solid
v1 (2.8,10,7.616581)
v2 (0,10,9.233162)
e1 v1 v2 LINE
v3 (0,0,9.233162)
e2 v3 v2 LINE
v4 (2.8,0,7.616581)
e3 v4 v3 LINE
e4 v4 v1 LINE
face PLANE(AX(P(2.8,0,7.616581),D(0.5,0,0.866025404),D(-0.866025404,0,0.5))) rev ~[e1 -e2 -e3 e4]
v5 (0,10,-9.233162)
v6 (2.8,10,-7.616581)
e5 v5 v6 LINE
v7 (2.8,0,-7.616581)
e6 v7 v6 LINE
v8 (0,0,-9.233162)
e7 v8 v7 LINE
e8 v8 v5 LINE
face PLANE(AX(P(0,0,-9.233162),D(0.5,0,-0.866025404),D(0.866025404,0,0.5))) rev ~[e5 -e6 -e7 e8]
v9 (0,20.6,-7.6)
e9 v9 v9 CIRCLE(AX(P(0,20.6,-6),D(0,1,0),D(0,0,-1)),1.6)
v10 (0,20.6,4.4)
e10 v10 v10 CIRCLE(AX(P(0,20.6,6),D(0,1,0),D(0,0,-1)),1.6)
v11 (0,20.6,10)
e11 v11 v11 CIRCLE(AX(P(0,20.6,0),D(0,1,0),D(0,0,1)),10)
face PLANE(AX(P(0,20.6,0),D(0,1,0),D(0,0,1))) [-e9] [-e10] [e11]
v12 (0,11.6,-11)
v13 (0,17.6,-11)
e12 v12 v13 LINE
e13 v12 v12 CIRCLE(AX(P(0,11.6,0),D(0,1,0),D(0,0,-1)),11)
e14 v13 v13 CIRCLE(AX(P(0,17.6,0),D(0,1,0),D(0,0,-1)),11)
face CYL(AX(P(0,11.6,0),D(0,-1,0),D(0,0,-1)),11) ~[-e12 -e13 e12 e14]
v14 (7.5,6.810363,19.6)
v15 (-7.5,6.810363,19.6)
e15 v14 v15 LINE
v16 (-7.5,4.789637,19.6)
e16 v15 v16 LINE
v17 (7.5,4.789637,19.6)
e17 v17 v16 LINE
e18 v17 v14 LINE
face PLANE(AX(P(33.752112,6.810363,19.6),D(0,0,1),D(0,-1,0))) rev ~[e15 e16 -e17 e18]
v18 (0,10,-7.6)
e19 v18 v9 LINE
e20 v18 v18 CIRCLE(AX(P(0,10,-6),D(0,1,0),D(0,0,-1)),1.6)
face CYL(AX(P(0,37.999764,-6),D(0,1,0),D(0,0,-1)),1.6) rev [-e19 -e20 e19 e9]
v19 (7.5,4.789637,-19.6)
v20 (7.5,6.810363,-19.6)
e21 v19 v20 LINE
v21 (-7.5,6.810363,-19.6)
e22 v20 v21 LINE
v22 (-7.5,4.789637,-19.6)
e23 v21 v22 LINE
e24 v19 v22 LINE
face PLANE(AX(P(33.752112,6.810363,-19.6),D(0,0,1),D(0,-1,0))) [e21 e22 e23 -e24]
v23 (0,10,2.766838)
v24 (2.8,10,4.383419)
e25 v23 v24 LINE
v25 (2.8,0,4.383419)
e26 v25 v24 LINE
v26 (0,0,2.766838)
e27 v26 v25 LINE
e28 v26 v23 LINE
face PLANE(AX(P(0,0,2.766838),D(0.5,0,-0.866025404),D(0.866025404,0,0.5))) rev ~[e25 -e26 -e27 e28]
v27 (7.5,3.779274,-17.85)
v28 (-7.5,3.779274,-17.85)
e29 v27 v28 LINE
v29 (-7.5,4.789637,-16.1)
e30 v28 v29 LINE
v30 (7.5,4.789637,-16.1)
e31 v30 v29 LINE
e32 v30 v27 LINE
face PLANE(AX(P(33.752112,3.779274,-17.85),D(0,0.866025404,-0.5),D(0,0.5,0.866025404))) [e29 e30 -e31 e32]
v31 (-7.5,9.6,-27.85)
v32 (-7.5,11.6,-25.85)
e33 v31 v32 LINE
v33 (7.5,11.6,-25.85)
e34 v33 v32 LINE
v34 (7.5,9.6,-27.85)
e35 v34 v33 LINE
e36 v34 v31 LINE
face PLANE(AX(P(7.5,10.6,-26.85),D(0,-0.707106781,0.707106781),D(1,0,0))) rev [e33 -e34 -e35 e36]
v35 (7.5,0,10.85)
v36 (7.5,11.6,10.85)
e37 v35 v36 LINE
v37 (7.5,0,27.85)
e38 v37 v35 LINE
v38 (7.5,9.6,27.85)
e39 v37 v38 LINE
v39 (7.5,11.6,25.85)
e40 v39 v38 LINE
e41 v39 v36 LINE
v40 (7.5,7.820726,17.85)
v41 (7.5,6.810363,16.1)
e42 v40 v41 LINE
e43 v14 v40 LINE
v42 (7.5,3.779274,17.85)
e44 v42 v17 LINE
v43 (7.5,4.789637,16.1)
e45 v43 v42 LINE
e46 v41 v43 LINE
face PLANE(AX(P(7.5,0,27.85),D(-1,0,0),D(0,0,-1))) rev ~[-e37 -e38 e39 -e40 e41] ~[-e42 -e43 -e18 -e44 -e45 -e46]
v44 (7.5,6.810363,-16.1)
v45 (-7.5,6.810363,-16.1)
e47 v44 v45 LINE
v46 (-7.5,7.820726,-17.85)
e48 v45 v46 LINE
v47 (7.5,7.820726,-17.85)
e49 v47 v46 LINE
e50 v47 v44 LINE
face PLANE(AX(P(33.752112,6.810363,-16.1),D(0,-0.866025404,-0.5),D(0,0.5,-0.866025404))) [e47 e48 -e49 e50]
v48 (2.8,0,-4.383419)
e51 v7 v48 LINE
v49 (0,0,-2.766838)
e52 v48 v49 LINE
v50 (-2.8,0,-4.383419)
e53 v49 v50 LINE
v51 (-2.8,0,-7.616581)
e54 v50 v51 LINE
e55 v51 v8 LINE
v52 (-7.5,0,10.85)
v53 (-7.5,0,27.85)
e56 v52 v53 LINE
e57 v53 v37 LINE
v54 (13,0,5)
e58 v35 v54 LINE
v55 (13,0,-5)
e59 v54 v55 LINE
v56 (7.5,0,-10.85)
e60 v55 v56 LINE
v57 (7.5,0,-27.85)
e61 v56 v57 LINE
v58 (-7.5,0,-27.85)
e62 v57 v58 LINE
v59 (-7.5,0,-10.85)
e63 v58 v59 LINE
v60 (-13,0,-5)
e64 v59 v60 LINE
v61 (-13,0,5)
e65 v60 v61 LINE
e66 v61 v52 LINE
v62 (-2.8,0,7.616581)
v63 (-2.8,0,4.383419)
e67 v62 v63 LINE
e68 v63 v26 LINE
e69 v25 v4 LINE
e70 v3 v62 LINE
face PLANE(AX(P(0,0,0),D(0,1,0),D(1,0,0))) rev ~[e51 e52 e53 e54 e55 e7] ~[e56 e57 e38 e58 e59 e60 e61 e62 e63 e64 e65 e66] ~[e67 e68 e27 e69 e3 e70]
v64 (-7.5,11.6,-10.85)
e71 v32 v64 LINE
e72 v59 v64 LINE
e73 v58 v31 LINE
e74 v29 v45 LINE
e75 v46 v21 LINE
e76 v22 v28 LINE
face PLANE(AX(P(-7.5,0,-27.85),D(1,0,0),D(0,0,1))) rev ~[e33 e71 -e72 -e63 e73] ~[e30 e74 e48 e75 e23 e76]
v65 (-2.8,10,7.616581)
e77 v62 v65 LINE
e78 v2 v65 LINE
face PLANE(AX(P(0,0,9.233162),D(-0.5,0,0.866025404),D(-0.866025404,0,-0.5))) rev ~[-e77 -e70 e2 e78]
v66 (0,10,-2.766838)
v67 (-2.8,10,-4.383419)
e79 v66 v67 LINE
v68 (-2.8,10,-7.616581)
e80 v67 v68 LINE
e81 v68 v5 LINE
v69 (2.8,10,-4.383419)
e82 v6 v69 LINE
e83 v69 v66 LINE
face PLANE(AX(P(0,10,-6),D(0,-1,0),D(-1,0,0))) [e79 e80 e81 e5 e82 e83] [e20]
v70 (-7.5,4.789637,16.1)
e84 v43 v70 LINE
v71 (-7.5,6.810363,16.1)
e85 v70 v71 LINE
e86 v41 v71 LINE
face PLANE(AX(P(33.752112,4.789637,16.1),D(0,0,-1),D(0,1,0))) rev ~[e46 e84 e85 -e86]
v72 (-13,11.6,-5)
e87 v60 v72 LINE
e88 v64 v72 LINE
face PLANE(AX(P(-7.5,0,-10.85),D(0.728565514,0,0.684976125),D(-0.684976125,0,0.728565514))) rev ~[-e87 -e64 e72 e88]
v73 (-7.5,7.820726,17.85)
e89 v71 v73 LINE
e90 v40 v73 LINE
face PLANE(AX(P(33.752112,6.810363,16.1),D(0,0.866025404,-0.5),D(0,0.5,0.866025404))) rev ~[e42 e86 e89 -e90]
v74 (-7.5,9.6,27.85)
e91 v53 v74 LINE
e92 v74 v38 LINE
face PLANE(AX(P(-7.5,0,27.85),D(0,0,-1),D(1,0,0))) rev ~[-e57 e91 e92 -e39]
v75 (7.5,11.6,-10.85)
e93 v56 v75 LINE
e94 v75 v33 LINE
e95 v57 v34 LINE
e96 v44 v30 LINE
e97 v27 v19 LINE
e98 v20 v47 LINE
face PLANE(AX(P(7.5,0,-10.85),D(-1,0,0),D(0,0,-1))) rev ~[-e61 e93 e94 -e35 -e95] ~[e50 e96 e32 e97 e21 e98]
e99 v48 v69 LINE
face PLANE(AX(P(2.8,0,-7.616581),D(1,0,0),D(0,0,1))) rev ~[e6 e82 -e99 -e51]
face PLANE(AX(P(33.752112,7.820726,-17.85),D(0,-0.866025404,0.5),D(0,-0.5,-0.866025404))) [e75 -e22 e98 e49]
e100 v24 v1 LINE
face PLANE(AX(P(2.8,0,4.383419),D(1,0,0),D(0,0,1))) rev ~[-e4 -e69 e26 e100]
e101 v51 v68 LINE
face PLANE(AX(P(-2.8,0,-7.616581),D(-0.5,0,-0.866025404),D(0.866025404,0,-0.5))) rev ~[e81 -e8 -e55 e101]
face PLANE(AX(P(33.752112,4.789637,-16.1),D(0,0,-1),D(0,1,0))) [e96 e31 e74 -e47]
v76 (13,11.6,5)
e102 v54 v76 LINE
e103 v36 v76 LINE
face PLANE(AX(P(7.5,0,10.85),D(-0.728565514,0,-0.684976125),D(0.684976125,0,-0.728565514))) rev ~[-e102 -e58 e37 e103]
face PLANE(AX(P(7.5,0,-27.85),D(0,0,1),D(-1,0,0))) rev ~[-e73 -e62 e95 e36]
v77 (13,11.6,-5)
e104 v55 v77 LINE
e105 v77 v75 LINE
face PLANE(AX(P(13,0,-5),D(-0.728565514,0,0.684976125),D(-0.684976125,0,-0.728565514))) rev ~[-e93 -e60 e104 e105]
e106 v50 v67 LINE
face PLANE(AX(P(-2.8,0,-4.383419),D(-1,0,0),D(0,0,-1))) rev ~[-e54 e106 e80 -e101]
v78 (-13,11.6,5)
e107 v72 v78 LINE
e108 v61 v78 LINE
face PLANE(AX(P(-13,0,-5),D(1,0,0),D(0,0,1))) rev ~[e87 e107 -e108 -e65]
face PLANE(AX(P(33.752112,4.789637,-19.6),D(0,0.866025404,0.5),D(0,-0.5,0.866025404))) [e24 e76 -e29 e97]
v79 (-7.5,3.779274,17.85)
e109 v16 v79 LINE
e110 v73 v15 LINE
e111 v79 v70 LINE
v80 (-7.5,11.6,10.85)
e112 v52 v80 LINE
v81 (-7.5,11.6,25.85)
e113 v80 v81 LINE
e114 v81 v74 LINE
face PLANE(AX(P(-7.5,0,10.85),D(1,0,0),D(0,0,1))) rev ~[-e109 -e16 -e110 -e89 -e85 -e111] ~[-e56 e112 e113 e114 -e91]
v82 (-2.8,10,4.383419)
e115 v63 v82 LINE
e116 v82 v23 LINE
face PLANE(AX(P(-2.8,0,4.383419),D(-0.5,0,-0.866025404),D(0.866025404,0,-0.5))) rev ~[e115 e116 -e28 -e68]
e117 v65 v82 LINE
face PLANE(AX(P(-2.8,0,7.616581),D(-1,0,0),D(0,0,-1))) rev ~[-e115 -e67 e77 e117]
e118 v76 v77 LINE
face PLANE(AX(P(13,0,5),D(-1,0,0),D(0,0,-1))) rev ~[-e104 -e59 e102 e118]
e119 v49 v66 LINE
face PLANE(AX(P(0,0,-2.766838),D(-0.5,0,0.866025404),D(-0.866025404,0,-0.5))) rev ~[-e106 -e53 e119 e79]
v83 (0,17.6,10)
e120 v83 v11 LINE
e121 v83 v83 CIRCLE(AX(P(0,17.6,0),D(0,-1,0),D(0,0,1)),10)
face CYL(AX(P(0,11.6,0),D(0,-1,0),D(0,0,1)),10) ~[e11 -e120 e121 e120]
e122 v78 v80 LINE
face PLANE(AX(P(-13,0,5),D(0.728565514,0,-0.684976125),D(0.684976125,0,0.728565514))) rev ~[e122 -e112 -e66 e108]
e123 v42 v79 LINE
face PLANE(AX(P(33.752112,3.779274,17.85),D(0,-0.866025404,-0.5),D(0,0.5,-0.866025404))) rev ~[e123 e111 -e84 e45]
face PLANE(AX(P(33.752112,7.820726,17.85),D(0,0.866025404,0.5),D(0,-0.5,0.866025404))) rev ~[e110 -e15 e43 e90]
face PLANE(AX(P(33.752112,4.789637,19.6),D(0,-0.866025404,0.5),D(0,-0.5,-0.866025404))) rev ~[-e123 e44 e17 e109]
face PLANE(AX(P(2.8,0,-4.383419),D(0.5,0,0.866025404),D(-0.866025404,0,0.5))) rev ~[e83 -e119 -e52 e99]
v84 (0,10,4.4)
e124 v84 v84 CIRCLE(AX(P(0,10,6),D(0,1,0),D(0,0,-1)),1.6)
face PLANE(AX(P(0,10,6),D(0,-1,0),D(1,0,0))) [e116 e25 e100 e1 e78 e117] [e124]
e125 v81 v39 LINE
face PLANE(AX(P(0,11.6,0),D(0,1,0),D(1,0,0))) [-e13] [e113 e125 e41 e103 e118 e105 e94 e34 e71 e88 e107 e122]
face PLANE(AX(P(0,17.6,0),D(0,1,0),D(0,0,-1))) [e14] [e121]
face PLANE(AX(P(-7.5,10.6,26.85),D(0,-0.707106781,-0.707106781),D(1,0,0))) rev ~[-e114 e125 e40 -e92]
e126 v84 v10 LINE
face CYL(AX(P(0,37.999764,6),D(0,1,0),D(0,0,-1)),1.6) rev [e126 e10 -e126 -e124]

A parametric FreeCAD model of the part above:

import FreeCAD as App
import Part
import Sketcher

V = App.Vector
Q = App.Units.Quantity


def edges_at(feature, points):
    """Names of the edges that pass closest to the given points."""
    edges = feature.Shape.Edges
    near = lambda p: min(range(len(edges)), key=lambda i: edges[i].distToShape(Part.Vertex(*p))[0])
    return sorted({f"Edge{near(p) + 1}" for p in points})

doc = App.newDocument("Part")
params = doc.addObject("Spreadsheet::Sheet", "Params")
for row, (alias, value) in enumerate([
    ("sketch1_width", "15 mm"),
    ("sketch1_height", "17 mm"),
    ("sketch1_height2", "10 mm"),
    ("pad1_length", "11.6 mm"),
    ("sketch2_diameter", "20 mm"),
    ("pad2_length", "9 mm"),
    ("sketch3_diameter", "3.2 mm"),
    ("chamfer_size", "2 mm"),
    ("sketch5_diameter", "22 mm"),
    ("sketch5_diameter2", "3.2 mm"),
    ("pad3_length", "6 mm"),
    ("pocket3_length", "10 mm"),
], start=1):
    params.set(f"A{row}", alias)
    params.set(f"B{row}", "=" + value)
    params.setAlias(f"B{row}", alias)

body = doc.addObject("PartDesign::Body", "Body")

# Sketch on XZ plane
sketch1 = doc.addObject("Sketcher::SketchObject", "Sketch")
body.addObject(sketch1)
sketch1.AttachmentSupport = (doc.XZ_Plane, [""])
sketch1.MapMode = "FlatFace"
sketch1.addGeometry([
    Part.LineSegment(V(8, -28, 0), V(-8, -28, 0)),  # 0
    Part.LineSegment(V(-8, -28, 0), V(-8, -11, 0)),  # 1
    Part.LineSegment(V(-8, -11, 0), V(-13, -5, 0)),  # 2
    Part.LineSegment(V(-13, -5, 0), V(-13, 5, 0)),  # 3
    Part.LineSegment(V(-13, 5, 0), V(-8, 11, 0)),  # 4
    Part.LineSegment(V(-8, 11, 0), V(-8, 28, 0)),  # 5
    Part.LineSegment(V(-8, 28, 0), V(8, 28, 0)),  # 6
    Part.LineSegment(V(8, 28, 0), V(8, 11, 0)),  # 7
    Part.LineSegment(V(8, 11, 0), V(13, 5, 0)),  # 8
    Part.LineSegment(V(13, 5, 0), V(13, -5, 0)),  # 9
    Part.LineSegment(V(13, -5, 0), V(8, -11, 0)),  # 10
    Part.LineSegment(V(8, -11, 0), V(8, -28, 0)),  # 11
], False)
sketch1.addConstraint([
    Sketcher.Constraint("Coincident", 0, 2, 1, 1),
    Sketcher.Constraint("Coincident", 1, 2, 2, 1),
    Sketcher.Constraint("Coincident", 2, 2, 3, 1),
    Sketcher.Constraint("Coincident", 3, 2, 4, 1),
    Sketcher.Constraint("Coincident", 4, 2, 5, 1),
    Sketcher.Constraint("Coincident", 5, 2, 6, 1),
    Sketcher.Constraint("Coincident", 6, 2, 7, 1),
    Sketcher.Constraint("Coincident", 7, 2, 8, 1),
    Sketcher.Constraint("Coincident", 8, 2, 9, 1),
    Sketcher.Constraint("Coincident", 9, 2, 10, 1),
    Sketcher.Constraint("Coincident", 10, 2, 11, 1),
    Sketcher.Constraint("Coincident", 11, 2, 0, 1),
    Sketcher.Constraint("Horizontal", 0),
    Sketcher.Constraint("Vertical", 1),
    Sketcher.Constraint("Vertical", 3),
    Sketcher.Constraint("Vertical", 5),
    Sketcher.Constraint("Horizontal", 6),
    Sketcher.Constraint("Vertical", 7),
    Sketcher.Constraint("Vertical", 9),
    Sketcher.Constraint("Vertical", 11),
    Sketcher.Constraint("Symmetric", 0, 2, 6, 2, -1, 1),
    Sketcher.Constraint("Symmetric", 2, 2, 8, 2, -1, 1),
    Sketcher.Constraint("Symmetric", 4, 2, 10, 2, -1, 1),
    Sketcher.Constraint("Symmetric", 4, 2, 7, 2, -2),
    Sketcher.Constraint("Parallel", 2, 8),
    Sketcher.Constraint("Parallel", 4, 10),
    Sketcher.Constraint("Horizontal", 3, 2, 8, 2),
    Sketcher.Constraint("DistanceX", 0, 2, 0, 1, Q("15 mm")),
    Sketcher.Constraint("DistanceY", 1, 1, 1, 2, Q("17 mm")),
    Sketcher.Constraint("DistanceY", 3, 1, 3, 2, Q("10 mm")),
    Sketcher.Constraint("DistanceX", 2, 2, -1, 1, Q("13 mm")),
    Sketcher.Constraint("DistanceY", 1, 2, 4, 2, Q("21.7 mm")),
])
sketch1.setExpression("Constraints[27]", "Params.sketch1_width")
sketch1.setExpression("Constraints[28]", "Params.sketch1_height")
sketch1.setExpression("Constraints[29]", "Params.sketch1_height2")
pad1 = doc.addObject("PartDesign::Pad", "Pad")
body.addObject(pad1)
pad1.Profile = sketch1
pad1.setExpression("Length", "Params.pad1_length")
pad1.Reversed = True

# Sketch on XZ plane
sketch2 = doc.addObject("Sketcher::SketchObject", "Sketch001")
body.addObject(sketch2)
sketch2.AttachmentSupport = (doc.XZ_Plane, [""])
sketch2.MapMode = "FlatFace"
sketch2.AttachmentOffset = App.Placement(V(0, 0, -11.6), App.Rotation())
sketch2.addGeometry(Part.Circle(V(0, 0, 0), V(0, 0, 1), 10), False)
sketch2.addConstraint([
    Sketcher.Constraint("Coincident", 0, 3, -1, 1),
    Sketcher.Constraint("Diameter", 0, Q("20 mm")),
])
sketch2.setExpression("Constraints[1]", "Params.sketch2_diameter")
pad2 = doc.addObject("PartDesign::Pad", "Pad001")
body.addObject(pad2)
pad2.Profile = sketch2
pad2.setExpression("Length", "Params.pad2_length")
pad2.Reversed = True

# Sketch on XZ plane
sketch3 = doc.addObject("Sketcher::SketchObject", "Sketch002")
body.addObject(sketch3)
sketch3.AttachmentSupport = (doc.XZ_Plane, [""])
sketch3.MapMode = "FlatFace"
sketch3.addGeometry([
    Part.Circle(V(0, 6, 0), V(0, 0, 1), 1.6),
    Part.Circle(V(0, -6, 0), V(0, 0, 1), 1.6),
], False)
sketch3.addConstraint([
    Sketcher.Constraint("Equal", 0, 1),
    Sketcher.Constraint("Symmetric", 0, 3, 1, 3, -1, 1),
    Sketcher.Constraint("PointOnObject", 0, 3, -2),
    Sketcher.Constraint("Diameter", 0, Q("3.2 mm")),
    Sketcher.Constraint("DistanceY", -1, 1, 0, 3, Q("6 mm")),
])
sketch3.setExpression("Constraints[3]", "Params.sketch3_diameter")
pocket1 = doc.addObject("PartDesign::Pocket", "Pocket")
body.addObject(pocket1)
pocket1.Profile = sketch3
pocket1.Type = "ThroughAll"
pocket1.Midplane = True

# Sketch on YZ plane
sketch4 = doc.addObject("Sketcher::SketchObject", "Sketch003")
body.addObject(sketch4)
sketch4.AttachmentSupport = (doc.YZ_Plane, [""])
sketch4.MapMode = "FlatFace"
sketch4.AttachmentOffset = App.Placement(V(0, 0, -7.5), App.Rotation())
sketch4.addGeometry([
    Part.LineSegment(V(7.8, 17.9, 0), V(6.8, 16.1, 0)),  # 0
    Part.LineSegment(V(6.8, 16.1, 0), V(4.8, 16.1, 0)),  # 1
    Part.LineSegment(V(4.8, 16.1, 0), V(3.8, 17.9, 0)),  # 2
    Part.LineSegment(V(3.8, 17.9, 0), V(4.8, 19.6, 0)),  # 3
    Part.LineSegment(V(4.8, 19.6, 0), V(6.8, 19.6, 0)),  # 4
    Part.LineSegment(V(6.8, 19.6, 0), V(7.8, 17.9, 0)),  # 5
    Part.LineSegment(V(7.8, -17.9, 0), V(6.8, -19.6, 0)),  # 6
    Part.LineSegment(V(6.8, -19.6, 0), V(4.8, -19.6, 0)),  # 7
    Part.LineSegment(V(4.8, -19.6, 0), V(3.8, -17.9, 0)),  # 8
    Part.LineSegment(V(3.8, -17.9, 0), V(4.8, -16.1, 0)),  # 9
    Part.LineSegment(V(4.8, -16.1, 0), V(6.8, -16.1, 0)),  # 10
    Part.LineSegment(V(6.8, -16.1, 0), V(7.8, -17.9, 0)),  # 11
], False)
sketch4.addConstraint([
    Sketcher.Constraint("Coincident", 0, 2, 1, 1),
    Sketcher.Constraint("Coincident", 1, 2, 2, 1),
    Sketcher.Constraint("Coincident", 2, 2, 3, 1),
    Sketcher.Constraint("Coincident", 3, 2, 4, 1),
    Sketcher.Constraint("Coincident", 4, 2, 5, 1),
    Sketcher.Constraint("Coincident", 5, 2, 0, 1),
    Sketcher.Constraint("Coincident", 6, 2, 7, 1),
    Sketcher.Constraint("Coincident", 7, 2, 8, 1),
    Sketcher.Constraint("Coincident", 8, 2, 9, 1),
    Sketcher.Constraint("Coincident", 9, 2, 10, 1),
    Sketcher.Constraint("Coincident", 10, 2, 11, 1),
    Sketcher.Constraint("Coincident", 11, 2, 6, 1),
    Sketcher.Constraint("Horizontal", 1),
    Sketcher.Constraint("Horizontal", 4),
    Sketcher.Constraint("Horizontal", 7),
    Sketcher.Constraint("Horizontal", 10),
    Sketcher.Constraint("Symmetric", 4, 2, 6, 2, -1),
    Sketcher.Constraint("Symmetric", 2, 2, 8, 2, -1),
    Sketcher.Constraint("Symmetric", 1, 2, 9, 2, -1),
    Sketcher.Constraint("Symmetric", 5, 2, 11, 2, -1),
    Sketcher.Constraint("Parallel", 0, 3),
    Sketcher.Constraint("Parallel", 2, 5),
    Sketcher.Constraint("Parallel", 3, 6),
    Sketcher.Constraint("Parallel", 5, 8),
    Sketcher.Constraint("Parallel", 8, 11),
    Sketcher.Constraint("Horizontal", 2, 2, 5, 2),
    Sketcher.Constraint("Vertical", 1, 2, 3, 2),
    Sketcher.Constraint("Angle", 0, Q("-120 deg")),
    Sketcher.Constraint("DistanceY", -1, 1, 0, 2, Q("16.1 mm")),
    Sketcher.Constraint("DistanceY", -1, 1, 3, 2, Q("19.6 mm")),
    Sketcher.Constraint("DistanceX", 1, 2, 1, 1, Q("2.020726 mm")),
    Sketcher.Constraint("DistanceX", -1, 1, 0, 2, Q("6.810363 mm")),
])
pocket2 = doc.addObject("PartDesign::Pocket", "Pocket001")
body.addObject(pocket2)
pocket2.Profile = sketch4
pocket2.Type = "ThroughAll"
pocket2.Midplane = True
doc.recompute()

chamfer = doc.addObject("PartDesign::Chamfer", "Chamfer")
body.addObject(chamfer)
chamfer.Base = (pocket2, edges_at(pocket2, [(0, 11.6, 27.85), (0, 11.6, -27.85)]))
chamfer.setExpression("Size", "Params.chamfer_size")

# Sketch on XZ plane
sketch5 = doc.addObject("Sketcher::SketchObject", "Sketch004")
body.addObject(sketch5)
sketch5.AttachmentSupport = (doc.XZ_Plane, [""])
sketch5.MapMode = "FlatFace"
sketch5.AttachmentOffset = App.Placement(V(0, 0, -11.6), App.Rotation())
sketch5.addGeometry([
    Part.Circle(V(0, 0, 0), V(0, 0, 1), 11),
    Part.Circle(V(0, 6, 0), V(0, 0, 1), 1.6),
    Part.Circle(V(0, -6, 0), V(0, 0, 1), 1.6),
], False)
sketch5.addConstraint([
    Sketcher.Constraint("Coincident", 0, 3, -1, 1),
    Sketcher.Constraint("Equal", 1, 2),
    Sketcher.Constraint("Symmetric", 1, 3, 2, 3, -1, 1),
    Sketcher.Constraint("PointOnObject", 1, 3, -2),
    Sketcher.Constraint("Diameter", 0, Q("22 mm")),
    Sketcher.Constraint("Diameter", 1, Q("3.2 mm")),
    Sketcher.Constraint("DistanceY", -1, 1, 1, 3, Q("6 mm")),
])
sketch5.setExpression("Constraints[4]", "Params.sketch5_diameter")
sketch5.setExpression("Constraints[5]", "Params.sketch5_diameter2")
pad3 = doc.addObject("PartDesign::Pad", "Pad002")
body.addObject(pad3)
pad3.Profile = sketch5
pad3.setExpression("Length", "Params.pad3_length")
pad3.Reversed = True

# Sketch on XZ plane
sketch6 = doc.addObject("Sketcher::SketchObject", "Sketch005")
body.addObject(sketch6)
sketch6.AttachmentSupport = (doc.XZ_Plane, [""])
sketch6.MapMode = "FlatFace"
sketch6.addGeometry([
    Part.LineSegment(V(0, 9.2, 0), V(-2.8, 7.6, 0)),  # 0
    Part.LineSegment(V(-2.8, 7.6, 0), V(-2.8, 4.4, 0)),  # 1
    Part.LineSegment(V(-2.8, 4.4, 0), V(0, 2.8, 0)),  # 2
    Part.LineSegment(V(0, 2.8, 0), V(2.8, 4.4, 0)),  # 3
    Part.LineSegment(V(2.8, 4.4, 0), V(2.8, 7.6, 0)),  # 4
    Part.LineSegment(V(2.8, 7.6, 0), V(0, 9.2, 0)),  # 5
], False)
sketch6.addConstraint([
    Sketcher.Constraint("Coincident", 0, 2, 1, 1),
    Sketcher.Constraint("Coincident", 1, 2, 2, 1),
    Sketcher.Constraint("Coincident", 2, 2, 3, 1),
    Sketcher.Constraint("Coincident", 3, 2, 4, 1),
    Sketcher.Constraint("Coincident", 4, 2, 5, 1),
    Sketcher.Constraint("Coincident", 5, 2, 0, 1),
    Sketcher.Constraint("Vertical", 1),
    Sketcher.Constraint("Vertical", 4),
    Sketcher.Constraint("Symmetric", 1, 2, 3, 2, -2),
    Sketcher.Constraint("PointOnObject", 2, 2, -2),
    Sketcher.Constraint("PointOnObject", 5, 2, -2),
    Sketcher.Constraint("Parallel", 0, 3),
    Sketcher.Constraint("Parallel", 2, 5),
    Sketcher.Constraint("Angle", 0, Q("-150 deg")),
    Sketcher.Constraint("DistanceX", 0, 2, -1, 1, Q("2.8 mm")),
    Sketcher.Constraint("DistanceY", 1, 2, 1, 1, Q("3.233162 mm")),
    Sketcher.Constraint("DistanceY", -1, 1, 0, 2, Q("7.616581 mm")),
])
pocket3 = doc.addObject("PartDesign::Pocket", "Pocket002")
body.addObject(pocket3)
pocket3.Profile = sketch6
pocket3.setExpression("Length", "Params.pocket3_length")
doc.recompute()

polarpattern = doc.addObject("PartDesign::PolarPattern", "PolarPattern")
body.addObject(polarpattern)
polarpattern.Originals = [pocket3]
polarpattern.Axis = (doc.Y_Axis, [""])
polarpattern.Angle = 360
polarpattern.Occurrences = 2
body.Tip = polarpattern

doc.recompute()
